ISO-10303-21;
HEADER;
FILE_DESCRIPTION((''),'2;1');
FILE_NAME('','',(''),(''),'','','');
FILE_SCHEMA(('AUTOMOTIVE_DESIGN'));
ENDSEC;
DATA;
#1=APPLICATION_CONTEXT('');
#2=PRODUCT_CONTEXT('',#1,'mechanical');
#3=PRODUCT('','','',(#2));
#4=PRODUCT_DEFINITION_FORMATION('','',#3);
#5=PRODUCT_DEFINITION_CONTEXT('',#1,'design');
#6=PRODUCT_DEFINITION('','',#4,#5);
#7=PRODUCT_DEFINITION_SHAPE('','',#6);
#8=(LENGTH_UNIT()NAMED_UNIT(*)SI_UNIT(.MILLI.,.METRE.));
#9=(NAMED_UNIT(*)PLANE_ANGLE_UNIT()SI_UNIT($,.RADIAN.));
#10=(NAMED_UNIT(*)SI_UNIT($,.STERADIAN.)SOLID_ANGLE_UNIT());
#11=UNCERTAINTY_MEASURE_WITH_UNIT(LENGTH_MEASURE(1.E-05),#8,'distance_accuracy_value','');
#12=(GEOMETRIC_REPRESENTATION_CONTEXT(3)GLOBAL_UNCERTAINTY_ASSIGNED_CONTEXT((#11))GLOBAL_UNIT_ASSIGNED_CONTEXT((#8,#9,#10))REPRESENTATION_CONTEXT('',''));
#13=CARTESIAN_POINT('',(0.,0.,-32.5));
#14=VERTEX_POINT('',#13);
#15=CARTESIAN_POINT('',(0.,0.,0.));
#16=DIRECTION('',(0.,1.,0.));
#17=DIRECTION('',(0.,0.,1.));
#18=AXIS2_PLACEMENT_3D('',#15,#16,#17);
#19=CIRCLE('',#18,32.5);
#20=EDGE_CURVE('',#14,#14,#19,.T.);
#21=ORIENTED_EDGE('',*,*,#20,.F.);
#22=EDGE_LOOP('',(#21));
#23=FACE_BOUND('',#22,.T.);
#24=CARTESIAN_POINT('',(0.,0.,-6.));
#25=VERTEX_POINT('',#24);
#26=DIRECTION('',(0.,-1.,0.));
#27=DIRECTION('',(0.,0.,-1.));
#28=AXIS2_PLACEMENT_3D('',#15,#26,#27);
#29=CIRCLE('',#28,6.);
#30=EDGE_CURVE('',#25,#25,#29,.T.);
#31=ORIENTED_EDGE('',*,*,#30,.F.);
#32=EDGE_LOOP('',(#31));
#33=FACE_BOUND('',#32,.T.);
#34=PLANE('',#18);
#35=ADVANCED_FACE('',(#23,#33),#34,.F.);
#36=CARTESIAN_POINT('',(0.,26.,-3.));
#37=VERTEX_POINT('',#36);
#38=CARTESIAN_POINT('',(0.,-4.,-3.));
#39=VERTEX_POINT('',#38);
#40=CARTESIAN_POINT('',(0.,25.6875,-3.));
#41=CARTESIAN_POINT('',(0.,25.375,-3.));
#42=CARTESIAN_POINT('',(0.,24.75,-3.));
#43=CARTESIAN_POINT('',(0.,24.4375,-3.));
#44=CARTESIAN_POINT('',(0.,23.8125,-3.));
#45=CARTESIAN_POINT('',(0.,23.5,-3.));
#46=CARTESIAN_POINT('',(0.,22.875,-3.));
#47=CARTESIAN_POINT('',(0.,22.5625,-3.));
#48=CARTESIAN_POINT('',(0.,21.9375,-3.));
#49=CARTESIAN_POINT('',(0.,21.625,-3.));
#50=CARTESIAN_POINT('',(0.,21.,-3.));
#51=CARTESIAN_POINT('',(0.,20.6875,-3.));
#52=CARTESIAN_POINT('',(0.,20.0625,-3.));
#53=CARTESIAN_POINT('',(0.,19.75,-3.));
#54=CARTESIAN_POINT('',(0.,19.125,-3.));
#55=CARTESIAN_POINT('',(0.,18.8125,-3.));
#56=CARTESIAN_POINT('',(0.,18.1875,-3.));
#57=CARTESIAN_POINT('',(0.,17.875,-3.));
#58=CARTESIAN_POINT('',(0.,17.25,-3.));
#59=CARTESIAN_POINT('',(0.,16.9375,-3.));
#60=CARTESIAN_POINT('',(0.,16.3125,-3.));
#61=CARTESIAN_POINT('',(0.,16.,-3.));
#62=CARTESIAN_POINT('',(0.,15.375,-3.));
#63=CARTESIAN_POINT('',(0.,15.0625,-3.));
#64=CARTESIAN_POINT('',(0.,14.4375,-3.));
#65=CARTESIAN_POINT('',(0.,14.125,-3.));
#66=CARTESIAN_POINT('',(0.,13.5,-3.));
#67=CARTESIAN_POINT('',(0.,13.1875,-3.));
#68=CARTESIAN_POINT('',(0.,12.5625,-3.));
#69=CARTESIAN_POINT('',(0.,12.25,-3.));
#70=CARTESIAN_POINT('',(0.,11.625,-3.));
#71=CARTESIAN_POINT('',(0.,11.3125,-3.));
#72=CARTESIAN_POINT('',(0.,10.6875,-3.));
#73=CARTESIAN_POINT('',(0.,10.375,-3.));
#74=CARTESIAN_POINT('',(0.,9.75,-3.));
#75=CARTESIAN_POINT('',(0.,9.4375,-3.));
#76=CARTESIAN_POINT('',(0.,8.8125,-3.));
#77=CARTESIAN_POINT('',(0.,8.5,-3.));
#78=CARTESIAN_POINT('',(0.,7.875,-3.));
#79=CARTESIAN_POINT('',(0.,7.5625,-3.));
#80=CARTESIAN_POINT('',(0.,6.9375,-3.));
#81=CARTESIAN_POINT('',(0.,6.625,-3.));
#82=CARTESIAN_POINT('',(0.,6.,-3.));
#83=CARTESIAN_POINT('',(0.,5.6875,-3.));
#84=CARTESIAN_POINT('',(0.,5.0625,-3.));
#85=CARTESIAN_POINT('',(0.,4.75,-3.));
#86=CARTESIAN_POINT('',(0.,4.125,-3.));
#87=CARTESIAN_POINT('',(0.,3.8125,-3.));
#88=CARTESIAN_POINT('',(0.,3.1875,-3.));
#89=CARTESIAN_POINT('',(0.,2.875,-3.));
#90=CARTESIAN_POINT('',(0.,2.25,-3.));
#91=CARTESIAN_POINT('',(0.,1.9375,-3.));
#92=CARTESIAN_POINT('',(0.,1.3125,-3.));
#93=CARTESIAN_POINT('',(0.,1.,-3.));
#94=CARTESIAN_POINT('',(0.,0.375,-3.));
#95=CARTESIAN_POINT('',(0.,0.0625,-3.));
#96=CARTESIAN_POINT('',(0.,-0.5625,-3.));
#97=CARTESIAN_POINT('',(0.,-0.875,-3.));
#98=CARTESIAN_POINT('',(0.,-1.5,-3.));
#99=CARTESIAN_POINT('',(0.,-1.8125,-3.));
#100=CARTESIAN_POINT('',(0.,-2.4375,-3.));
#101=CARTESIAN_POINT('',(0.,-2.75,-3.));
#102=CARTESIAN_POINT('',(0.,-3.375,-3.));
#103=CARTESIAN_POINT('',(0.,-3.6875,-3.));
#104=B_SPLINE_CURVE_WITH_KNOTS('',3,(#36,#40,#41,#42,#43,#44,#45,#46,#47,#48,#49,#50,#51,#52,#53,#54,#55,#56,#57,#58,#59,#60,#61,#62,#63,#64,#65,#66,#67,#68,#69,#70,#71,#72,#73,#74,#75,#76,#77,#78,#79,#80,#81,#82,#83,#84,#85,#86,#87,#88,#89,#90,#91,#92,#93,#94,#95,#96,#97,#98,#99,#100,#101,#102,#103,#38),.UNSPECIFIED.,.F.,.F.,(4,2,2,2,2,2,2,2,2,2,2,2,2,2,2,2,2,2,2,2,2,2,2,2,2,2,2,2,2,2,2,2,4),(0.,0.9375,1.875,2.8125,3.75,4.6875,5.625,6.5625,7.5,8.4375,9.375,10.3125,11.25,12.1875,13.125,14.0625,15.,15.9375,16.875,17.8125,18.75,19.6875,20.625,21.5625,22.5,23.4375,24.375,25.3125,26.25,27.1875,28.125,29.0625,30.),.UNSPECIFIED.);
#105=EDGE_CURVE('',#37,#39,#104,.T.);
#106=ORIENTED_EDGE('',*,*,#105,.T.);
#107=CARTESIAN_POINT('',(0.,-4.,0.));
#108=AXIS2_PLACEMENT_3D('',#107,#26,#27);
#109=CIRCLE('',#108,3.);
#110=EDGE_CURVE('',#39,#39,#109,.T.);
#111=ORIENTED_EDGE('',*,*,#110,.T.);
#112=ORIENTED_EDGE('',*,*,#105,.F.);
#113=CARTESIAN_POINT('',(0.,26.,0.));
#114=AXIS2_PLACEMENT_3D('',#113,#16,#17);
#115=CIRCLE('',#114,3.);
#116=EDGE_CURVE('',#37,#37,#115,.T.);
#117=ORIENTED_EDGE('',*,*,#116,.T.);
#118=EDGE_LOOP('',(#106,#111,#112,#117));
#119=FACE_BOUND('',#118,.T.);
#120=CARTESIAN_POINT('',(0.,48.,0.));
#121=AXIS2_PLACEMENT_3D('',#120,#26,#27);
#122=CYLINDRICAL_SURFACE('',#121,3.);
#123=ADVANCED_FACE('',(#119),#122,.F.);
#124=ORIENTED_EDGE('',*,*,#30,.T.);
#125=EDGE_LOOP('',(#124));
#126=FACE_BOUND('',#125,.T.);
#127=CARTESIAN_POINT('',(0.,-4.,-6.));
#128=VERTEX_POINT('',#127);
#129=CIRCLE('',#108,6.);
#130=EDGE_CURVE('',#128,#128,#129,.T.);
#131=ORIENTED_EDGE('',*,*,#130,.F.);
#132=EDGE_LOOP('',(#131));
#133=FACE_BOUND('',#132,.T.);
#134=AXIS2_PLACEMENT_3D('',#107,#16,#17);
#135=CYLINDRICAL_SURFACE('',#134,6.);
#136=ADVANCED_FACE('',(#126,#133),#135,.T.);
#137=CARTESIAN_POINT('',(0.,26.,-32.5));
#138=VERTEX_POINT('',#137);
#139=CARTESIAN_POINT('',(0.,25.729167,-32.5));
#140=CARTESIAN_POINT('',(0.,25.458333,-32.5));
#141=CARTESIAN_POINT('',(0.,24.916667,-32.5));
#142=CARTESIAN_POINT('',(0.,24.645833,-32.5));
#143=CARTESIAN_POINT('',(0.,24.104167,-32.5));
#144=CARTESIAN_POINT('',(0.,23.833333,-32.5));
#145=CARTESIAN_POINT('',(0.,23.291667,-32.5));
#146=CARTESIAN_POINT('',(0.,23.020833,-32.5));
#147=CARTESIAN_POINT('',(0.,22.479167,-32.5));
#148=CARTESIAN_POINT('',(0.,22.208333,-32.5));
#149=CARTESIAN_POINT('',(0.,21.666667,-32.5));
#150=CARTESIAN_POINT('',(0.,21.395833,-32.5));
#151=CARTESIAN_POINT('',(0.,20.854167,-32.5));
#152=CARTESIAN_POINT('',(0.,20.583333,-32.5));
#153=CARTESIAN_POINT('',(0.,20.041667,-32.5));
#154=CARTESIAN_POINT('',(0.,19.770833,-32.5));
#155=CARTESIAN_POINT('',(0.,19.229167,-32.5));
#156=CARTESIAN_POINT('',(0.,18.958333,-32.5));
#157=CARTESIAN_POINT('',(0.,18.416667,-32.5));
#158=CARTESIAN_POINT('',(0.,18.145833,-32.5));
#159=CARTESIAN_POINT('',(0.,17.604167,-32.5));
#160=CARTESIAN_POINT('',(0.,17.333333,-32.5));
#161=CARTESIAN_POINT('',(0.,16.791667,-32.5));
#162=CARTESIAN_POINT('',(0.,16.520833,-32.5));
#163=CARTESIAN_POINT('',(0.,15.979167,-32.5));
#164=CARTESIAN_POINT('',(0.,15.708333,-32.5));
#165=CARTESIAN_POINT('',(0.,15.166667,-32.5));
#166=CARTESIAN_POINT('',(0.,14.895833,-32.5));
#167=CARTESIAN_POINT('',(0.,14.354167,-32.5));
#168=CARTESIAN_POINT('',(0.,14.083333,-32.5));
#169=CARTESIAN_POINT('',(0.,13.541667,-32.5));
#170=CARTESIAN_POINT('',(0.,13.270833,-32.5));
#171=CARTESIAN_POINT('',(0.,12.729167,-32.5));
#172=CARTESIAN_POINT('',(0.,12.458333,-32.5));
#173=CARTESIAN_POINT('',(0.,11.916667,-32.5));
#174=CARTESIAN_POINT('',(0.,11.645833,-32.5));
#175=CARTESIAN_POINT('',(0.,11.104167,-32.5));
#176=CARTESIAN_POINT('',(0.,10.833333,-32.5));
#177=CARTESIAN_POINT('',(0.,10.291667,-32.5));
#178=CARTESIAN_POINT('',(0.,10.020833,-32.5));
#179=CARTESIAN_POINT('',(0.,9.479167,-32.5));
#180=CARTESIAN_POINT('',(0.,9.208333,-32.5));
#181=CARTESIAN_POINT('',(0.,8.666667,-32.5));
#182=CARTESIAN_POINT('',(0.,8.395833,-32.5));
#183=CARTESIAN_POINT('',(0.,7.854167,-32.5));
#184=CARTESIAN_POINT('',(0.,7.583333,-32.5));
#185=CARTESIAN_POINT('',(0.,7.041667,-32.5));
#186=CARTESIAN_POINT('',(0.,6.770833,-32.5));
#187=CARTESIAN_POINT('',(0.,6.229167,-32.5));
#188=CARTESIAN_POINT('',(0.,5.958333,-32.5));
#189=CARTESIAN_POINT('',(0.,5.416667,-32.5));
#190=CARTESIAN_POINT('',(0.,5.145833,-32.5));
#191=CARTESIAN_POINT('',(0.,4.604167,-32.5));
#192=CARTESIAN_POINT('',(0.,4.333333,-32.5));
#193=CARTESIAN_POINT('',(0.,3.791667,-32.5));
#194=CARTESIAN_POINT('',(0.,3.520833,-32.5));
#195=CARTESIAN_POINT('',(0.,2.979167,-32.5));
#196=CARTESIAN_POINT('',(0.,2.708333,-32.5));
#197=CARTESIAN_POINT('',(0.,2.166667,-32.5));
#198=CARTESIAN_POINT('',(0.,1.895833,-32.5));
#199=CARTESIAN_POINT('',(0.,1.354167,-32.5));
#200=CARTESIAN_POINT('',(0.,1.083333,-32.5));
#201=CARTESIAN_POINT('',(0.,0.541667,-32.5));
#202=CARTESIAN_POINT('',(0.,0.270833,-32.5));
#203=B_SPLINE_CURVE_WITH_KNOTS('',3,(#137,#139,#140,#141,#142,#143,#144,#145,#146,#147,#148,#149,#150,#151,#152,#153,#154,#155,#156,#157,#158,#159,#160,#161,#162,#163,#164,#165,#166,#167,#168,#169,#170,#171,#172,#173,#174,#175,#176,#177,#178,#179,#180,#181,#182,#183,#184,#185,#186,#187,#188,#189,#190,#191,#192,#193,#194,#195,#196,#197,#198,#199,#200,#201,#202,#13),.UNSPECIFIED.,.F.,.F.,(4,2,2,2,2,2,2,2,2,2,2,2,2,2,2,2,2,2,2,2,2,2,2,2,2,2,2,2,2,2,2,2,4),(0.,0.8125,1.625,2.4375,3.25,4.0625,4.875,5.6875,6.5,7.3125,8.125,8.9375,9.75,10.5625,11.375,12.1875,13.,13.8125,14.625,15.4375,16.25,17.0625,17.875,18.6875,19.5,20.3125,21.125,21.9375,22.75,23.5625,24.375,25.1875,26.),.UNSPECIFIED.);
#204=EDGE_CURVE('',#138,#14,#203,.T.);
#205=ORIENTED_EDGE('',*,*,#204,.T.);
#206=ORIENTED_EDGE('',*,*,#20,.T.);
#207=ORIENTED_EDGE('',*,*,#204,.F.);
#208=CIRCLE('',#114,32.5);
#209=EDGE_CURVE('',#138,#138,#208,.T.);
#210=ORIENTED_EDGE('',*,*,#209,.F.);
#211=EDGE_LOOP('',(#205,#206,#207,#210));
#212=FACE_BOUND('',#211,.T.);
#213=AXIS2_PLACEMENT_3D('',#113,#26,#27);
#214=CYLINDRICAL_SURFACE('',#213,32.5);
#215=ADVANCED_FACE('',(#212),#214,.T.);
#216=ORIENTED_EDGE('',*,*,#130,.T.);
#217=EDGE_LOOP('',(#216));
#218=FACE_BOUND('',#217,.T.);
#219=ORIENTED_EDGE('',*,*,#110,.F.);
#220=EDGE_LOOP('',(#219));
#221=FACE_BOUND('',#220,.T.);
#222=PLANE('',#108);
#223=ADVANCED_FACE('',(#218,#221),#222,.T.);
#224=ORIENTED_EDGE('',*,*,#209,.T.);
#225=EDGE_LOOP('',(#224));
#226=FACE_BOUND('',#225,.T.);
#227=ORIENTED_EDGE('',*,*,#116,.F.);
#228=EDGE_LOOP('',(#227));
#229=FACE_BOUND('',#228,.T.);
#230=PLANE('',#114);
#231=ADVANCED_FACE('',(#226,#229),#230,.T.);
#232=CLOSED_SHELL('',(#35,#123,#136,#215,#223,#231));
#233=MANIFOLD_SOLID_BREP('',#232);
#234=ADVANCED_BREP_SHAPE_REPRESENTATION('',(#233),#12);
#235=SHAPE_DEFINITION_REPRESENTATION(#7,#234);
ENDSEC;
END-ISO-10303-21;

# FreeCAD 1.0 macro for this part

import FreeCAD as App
import Part
import Sketcher
from FreeCAD import Vector
Q = App.Units.Quantity

doc = App.newDocument("Part")
body = doc.addObject("PartDesign::Body", "Body")

sketch1 = body.newObject("Sketcher::SketchObject", "Sketch")
sketch1.AttachmentSupport = (doc.getObject("XZ_Plane"), [""])
sketch1.MapMode = "FlatFace"
sketch1.addGeometry(Part.Circle(Vector(0, 0, 0), Vector(0, 0, 1), 32), False)
sketch1.addConstraint([
    Sketcher.Constraint("Coincident", 0, 3, -1, 1),
    Sketcher.Constraint("Diameter", 0, Q("65 mm")),
])
pad1 = body.newObject("PartDesign::Pad", "Pad")
pad1.Profile = sketch1
pad1.Length = 26
pad1.Reversed = True

sketch2 = body.newObject("Sketcher::SketchObject", "Sketch001")
sketch2.AttachmentSupport = (doc.getObject("XZ_Plane"), [""])
sketch2.MapMode = "FlatFace"
sketch2.addGeometry(Part.Circle(Vector(0, 0, 0), Vector(0, 0, 1), 6), False)
sketch2.addConstraint([
    Sketcher.Constraint("Coincident", 0, 3, -1, 1),
    Sketcher.Constraint("Diameter", 0, Q("12 mm")),
])
pad2 = body.newObject("PartDesign::Pad", "Pad001")
pad2.Profile = sketch2
pad2.Length = 4

sketch3 = body.newObject("Sketcher::SketchObject", "Sketch002")
sketch3.AttachmentSupport = (doc.getObject("XZ_Plane"), [""])
sketch3.MapMode = "FlatFace"
sketch3.AttachmentOffset = App.Placement(Vector(0, 0, 4), App.Rotation())
sketch3.addGeometry(Part.Circle(Vector(0, 0, 0), Vector(0, 0, 1), 3), False)
sketch3.addConstraint([
    Sketcher.Constraint("Coincident", 0, 3, -1, 1),
    Sketcher.Constraint("Diameter", 0, Q("6 mm")),
])
pocket1 = body.newObject("PartDesign::Pocket", "Pocket")
pocket1.Profile = sketch3
pocket1.Length = 52

doc.recompute()
